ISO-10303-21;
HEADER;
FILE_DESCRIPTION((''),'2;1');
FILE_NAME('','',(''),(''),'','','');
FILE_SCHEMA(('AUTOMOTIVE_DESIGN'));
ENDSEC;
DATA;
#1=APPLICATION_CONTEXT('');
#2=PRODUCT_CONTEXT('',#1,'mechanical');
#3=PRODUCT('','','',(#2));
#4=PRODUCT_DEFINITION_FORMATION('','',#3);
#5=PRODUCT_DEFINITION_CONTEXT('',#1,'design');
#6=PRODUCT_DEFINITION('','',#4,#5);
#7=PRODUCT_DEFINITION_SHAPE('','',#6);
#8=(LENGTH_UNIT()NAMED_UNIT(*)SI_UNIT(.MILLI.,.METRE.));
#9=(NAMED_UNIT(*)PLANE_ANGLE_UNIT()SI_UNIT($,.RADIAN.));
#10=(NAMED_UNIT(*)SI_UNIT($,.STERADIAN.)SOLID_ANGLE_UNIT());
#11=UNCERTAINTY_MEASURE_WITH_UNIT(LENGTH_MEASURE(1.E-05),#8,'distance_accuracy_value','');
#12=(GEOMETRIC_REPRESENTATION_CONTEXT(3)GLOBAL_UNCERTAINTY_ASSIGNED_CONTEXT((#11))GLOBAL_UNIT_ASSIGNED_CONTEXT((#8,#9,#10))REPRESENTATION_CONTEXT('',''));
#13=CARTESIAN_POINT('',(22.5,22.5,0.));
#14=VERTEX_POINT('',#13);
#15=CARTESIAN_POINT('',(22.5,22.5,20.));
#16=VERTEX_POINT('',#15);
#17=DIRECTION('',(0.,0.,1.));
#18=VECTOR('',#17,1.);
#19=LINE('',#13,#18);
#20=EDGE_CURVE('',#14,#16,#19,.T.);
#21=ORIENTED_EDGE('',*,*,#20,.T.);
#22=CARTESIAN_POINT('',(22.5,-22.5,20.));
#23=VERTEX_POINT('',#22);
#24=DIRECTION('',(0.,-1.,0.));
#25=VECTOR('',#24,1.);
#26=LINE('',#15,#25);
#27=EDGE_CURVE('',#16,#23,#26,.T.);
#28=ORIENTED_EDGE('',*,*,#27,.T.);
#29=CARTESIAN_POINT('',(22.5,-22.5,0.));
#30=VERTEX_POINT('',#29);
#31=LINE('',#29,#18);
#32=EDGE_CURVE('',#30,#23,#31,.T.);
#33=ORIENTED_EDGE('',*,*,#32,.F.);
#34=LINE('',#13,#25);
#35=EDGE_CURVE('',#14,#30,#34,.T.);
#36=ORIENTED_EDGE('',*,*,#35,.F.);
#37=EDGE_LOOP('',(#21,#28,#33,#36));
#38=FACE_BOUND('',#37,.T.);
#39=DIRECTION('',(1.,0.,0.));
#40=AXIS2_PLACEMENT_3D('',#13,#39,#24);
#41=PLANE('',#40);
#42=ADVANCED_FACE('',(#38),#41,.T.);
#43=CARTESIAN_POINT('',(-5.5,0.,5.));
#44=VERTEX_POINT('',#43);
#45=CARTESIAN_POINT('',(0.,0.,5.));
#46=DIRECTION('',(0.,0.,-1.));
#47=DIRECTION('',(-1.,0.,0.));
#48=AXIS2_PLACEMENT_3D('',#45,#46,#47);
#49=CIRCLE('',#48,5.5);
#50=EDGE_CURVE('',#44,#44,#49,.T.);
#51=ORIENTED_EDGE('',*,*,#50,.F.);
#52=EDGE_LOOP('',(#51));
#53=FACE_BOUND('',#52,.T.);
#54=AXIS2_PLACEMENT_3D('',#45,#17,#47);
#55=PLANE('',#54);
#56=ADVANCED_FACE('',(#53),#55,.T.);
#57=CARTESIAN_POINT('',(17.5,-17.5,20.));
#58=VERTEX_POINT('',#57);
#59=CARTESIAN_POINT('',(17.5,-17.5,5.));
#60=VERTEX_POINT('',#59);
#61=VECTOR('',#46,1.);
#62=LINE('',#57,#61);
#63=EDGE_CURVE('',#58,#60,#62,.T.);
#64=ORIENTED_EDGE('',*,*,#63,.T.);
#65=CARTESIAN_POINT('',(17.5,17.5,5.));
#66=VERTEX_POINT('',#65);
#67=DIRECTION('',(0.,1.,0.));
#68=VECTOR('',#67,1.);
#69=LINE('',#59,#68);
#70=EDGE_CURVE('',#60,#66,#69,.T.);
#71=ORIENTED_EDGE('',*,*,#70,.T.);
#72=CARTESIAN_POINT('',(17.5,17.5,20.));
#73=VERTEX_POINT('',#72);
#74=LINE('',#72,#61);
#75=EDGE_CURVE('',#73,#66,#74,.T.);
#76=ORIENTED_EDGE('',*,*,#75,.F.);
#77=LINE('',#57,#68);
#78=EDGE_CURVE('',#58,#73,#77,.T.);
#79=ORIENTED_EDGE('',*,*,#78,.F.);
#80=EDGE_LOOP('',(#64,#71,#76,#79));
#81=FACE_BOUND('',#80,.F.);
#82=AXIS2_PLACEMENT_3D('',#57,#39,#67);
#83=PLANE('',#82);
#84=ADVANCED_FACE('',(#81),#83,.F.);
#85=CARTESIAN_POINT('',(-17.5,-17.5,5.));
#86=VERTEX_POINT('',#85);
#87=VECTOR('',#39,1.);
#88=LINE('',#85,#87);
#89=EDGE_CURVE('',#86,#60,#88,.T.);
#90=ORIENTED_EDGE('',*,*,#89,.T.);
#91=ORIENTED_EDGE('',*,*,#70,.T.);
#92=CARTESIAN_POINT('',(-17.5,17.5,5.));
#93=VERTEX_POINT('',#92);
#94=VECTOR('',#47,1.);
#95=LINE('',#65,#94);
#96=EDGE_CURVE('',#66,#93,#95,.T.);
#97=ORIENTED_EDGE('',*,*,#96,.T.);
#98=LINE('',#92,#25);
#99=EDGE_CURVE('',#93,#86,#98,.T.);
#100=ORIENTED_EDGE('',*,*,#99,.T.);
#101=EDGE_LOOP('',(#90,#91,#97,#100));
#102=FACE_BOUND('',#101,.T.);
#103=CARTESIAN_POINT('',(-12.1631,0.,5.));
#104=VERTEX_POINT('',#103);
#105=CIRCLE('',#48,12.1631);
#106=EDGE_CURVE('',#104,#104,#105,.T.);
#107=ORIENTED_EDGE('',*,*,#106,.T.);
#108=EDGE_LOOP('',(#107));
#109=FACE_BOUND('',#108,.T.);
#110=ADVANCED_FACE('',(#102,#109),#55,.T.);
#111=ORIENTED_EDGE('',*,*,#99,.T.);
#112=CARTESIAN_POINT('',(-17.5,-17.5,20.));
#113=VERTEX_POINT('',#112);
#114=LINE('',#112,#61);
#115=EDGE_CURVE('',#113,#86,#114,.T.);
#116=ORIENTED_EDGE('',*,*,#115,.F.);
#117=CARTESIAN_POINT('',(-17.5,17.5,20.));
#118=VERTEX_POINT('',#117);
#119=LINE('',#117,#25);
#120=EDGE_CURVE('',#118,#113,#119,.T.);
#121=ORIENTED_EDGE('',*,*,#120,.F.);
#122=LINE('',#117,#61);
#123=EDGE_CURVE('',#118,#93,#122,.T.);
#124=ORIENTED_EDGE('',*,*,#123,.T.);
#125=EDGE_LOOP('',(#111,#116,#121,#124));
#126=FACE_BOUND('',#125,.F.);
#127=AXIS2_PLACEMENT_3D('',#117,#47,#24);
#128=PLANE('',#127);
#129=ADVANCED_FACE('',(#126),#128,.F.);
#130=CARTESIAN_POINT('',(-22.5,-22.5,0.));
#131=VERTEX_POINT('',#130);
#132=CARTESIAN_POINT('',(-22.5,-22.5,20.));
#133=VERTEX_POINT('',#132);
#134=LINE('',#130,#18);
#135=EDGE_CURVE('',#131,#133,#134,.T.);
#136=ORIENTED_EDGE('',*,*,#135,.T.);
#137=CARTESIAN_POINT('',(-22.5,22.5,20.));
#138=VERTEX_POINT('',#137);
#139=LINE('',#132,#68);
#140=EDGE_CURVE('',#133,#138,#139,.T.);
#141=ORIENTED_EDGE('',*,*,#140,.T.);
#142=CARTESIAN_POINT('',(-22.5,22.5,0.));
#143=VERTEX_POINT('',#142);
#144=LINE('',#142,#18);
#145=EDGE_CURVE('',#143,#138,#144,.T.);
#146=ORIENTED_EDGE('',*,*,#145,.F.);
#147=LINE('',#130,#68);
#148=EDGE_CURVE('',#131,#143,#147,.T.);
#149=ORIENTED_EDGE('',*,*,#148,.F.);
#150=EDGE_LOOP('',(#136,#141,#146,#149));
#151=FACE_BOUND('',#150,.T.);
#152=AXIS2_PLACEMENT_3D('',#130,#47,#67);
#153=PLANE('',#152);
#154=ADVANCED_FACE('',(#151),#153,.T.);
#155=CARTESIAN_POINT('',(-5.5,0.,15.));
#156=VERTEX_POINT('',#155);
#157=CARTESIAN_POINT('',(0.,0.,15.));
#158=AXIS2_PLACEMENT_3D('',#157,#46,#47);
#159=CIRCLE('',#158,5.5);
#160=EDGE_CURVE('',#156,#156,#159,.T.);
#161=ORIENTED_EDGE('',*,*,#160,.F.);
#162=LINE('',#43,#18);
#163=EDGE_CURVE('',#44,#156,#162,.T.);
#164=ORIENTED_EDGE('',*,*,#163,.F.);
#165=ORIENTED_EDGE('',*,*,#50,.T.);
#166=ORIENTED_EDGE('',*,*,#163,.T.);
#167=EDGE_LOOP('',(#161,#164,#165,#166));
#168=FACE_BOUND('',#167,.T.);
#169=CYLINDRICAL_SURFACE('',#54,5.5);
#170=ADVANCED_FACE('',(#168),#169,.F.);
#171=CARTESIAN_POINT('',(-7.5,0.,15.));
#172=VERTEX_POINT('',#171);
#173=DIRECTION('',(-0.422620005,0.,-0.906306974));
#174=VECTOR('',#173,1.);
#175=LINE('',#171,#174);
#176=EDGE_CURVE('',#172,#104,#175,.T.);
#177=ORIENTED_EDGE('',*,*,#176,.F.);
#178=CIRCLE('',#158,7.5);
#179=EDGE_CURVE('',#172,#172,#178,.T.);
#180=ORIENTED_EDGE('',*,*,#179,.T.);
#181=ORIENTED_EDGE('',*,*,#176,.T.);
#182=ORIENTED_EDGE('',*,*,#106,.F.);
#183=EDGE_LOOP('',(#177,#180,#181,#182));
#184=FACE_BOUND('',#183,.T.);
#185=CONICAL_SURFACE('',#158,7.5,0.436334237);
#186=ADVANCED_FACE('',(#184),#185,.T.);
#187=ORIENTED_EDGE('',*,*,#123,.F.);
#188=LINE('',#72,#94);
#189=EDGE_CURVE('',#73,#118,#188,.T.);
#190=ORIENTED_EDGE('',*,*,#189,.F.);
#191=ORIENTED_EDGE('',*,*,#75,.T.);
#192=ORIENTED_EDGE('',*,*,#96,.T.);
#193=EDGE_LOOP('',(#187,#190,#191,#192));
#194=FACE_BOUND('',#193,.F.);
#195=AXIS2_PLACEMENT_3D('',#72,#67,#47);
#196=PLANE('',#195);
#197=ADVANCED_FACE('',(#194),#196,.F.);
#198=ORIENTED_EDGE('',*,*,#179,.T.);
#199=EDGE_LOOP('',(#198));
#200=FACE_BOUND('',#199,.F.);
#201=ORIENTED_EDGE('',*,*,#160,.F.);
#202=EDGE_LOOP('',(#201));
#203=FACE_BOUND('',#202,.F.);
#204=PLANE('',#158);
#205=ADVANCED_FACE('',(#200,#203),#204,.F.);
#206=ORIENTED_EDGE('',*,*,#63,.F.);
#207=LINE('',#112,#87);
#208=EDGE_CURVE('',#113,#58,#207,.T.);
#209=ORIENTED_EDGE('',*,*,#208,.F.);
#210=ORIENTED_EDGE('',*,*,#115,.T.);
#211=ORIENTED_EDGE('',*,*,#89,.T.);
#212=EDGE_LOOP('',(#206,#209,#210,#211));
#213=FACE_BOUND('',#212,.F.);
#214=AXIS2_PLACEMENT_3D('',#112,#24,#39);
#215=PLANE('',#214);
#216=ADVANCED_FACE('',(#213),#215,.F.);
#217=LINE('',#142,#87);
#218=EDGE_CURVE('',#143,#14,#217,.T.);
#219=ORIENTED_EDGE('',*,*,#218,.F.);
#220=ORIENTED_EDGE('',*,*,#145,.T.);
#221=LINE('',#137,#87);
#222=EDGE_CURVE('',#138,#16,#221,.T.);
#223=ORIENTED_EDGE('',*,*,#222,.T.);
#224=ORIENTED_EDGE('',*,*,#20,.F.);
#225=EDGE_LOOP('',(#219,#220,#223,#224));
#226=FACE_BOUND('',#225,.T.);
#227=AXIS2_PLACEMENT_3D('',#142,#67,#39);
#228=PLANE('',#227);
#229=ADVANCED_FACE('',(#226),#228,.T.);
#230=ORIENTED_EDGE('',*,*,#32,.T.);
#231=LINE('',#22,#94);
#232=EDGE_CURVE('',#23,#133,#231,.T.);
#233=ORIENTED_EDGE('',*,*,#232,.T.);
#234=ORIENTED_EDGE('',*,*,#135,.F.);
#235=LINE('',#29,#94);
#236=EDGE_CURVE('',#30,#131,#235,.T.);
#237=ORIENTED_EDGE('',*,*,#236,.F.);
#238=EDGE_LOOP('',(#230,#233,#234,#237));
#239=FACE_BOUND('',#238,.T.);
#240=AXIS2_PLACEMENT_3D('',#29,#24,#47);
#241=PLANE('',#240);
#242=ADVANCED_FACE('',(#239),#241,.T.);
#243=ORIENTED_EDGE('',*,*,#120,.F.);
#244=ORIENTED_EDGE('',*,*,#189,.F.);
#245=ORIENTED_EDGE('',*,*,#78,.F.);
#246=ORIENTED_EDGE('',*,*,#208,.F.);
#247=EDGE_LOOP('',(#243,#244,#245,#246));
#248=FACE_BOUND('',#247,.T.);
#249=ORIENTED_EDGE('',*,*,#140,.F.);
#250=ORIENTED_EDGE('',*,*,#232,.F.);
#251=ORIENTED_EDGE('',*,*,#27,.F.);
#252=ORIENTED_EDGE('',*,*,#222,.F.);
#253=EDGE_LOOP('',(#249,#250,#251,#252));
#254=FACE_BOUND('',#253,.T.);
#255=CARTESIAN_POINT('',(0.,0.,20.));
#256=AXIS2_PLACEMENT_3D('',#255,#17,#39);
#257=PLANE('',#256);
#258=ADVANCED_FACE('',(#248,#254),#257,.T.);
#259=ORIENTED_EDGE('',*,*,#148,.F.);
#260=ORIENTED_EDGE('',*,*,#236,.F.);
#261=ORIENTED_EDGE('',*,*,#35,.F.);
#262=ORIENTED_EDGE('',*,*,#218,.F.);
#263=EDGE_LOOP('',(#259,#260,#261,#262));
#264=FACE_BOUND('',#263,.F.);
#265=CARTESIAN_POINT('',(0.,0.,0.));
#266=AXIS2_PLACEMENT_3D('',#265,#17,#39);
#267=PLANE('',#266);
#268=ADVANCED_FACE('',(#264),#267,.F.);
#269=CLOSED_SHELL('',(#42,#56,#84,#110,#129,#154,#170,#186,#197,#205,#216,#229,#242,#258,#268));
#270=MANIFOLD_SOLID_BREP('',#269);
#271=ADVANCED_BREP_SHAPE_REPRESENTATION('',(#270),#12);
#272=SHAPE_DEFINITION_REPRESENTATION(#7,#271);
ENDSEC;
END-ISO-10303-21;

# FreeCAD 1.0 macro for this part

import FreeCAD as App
import Part
import Sketcher

V = App.Vector
Q = App.Units.Quantity


def add_polygon(sketch, points):
    """Adds a closed chain of lines whose ends are joined by coincident constraints."""
    first, n = sketch.GeometryCount, len(points)
    for a, b in zip(points, points[1:] + points[:1]):
        sketch.addGeometry(Part.LineSegment(App.Vector(*a, 0), App.Vector(*b, 0)), False)
    for i in range(n):
        sketch.addConstraint(Sketcher.Constraint("Coincident", first + i, 2, first + (i + 1) % n, 1))

doc = App.newDocument("Part")
body = doc.addObject("PartDesign::Body", "Body")

# Sketch on XY plane
sketch1 = doc.addObject("Sketcher::SketchObject", "Sketch")
body.addObject(sketch1)
sketch1.AttachmentSupport = (doc.XY_Plane, [""])
sketch1.MapMode = "FlatFace"
add_polygon(sketch1, [(22, 22), (-22, 22), (-22, -22), (22, -22)])  # lines 0-3
sketch1.addConstraint([
    Sketcher.Constraint("Horizontal", 0),
    Sketcher.Constraint("Vertical", 1),
    Sketcher.Constraint("Horizontal", 2),
    Sketcher.Constraint("Vertical", 3),
    Sketcher.Constraint("Symmetric", 0, 2, 2, 2, -1, 1),
    Sketcher.Constraint("Equal", 2, 1),
    Sketcher.Constraint("DistanceX", 0, 2, 0, 1, 45.0),
])
pad1 = doc.addObject("PartDesign::Pad", "Pad")
body.addObject(pad1)
pad1.Profile = sketch1
pad1.Length = 20

# Sketch on XY plane
sketch2 = doc.addObject("Sketcher::SketchObject", "Sketch001")
body.addObject(sketch2)
sketch2.AttachmentSupport = (doc.XY_Plane, [""])
sketch2.MapMode = "FlatFace"
sketch2.AttachmentOffset = App.Placement(V(0, 0, 20), App.Rotation())
add_polygon(sketch2, [(18, -18), (18, 18), (-18, 18), (-18, -18)])  # lines 0-3
sketch2.addConstraint([
    Sketcher.Constraint("Vertical", 0),
    Sketcher.Constraint("Horizontal", 1),
    Sketcher.Constraint("Vertical", 2),
    Sketcher.Constraint("Horizontal", 3),
    Sketcher.Constraint("Symmetric", 0, 2, 2, 2, -1, 1),
    Sketcher.Constraint("Equal", 3, 0),
    Sketcher.Constraint("DistanceX", 1, 2, 1, 1, 35.0),
])
pocket1 = doc.addObject("PartDesign::Pocket", "Pocket")
body.addObject(pocket1)
pocket1.Profile = sketch2
pocket1.Length = 15

# Sketch on XZ plane
sketch3 = doc.addObject("Sketcher::SketchObject", "Sketch002")
body.addObject(sketch3)
sketch3.AttachmentSupport = (doc.XZ_Plane, [""])
sketch3.MapMode = "FlatFace"
add_polygon(sketch3, [(-5.5, 15), (-5.5, 5), (-12.2, 5), (-7.5, 15)])  # lines 0-3
sketch3.addConstraint([
    Sketcher.Constraint("Vertical", 0),
    Sketcher.Constraint("Horizontal", 1),
    Sketcher.Constraint("Horizontal", 3),
    Sketcher.Constraint("DistanceY", 0, 2, 0, 1, 10.0),
    Sketcher.Constraint("Angle", 2, Q("65 deg")),
    Sketcher.Constraint("DistanceY", -1, 1, 2, 2, 15.0),
    Sketcher.Constraint("DistanceX", 3, 1, 3, 2, 2.0),
    Sketcher.Constraint("DistanceX", 0, 2, -1, 1, 5.5),
])
revolution = doc.addObject("PartDesign::Revolution", "Revolution")
body.addObject(revolution)
revolution.Profile = sketch3
revolution.ReferenceAxis = (sketch3, ["V_Axis"])
revolution.Angle = 360

doc.recompute()
